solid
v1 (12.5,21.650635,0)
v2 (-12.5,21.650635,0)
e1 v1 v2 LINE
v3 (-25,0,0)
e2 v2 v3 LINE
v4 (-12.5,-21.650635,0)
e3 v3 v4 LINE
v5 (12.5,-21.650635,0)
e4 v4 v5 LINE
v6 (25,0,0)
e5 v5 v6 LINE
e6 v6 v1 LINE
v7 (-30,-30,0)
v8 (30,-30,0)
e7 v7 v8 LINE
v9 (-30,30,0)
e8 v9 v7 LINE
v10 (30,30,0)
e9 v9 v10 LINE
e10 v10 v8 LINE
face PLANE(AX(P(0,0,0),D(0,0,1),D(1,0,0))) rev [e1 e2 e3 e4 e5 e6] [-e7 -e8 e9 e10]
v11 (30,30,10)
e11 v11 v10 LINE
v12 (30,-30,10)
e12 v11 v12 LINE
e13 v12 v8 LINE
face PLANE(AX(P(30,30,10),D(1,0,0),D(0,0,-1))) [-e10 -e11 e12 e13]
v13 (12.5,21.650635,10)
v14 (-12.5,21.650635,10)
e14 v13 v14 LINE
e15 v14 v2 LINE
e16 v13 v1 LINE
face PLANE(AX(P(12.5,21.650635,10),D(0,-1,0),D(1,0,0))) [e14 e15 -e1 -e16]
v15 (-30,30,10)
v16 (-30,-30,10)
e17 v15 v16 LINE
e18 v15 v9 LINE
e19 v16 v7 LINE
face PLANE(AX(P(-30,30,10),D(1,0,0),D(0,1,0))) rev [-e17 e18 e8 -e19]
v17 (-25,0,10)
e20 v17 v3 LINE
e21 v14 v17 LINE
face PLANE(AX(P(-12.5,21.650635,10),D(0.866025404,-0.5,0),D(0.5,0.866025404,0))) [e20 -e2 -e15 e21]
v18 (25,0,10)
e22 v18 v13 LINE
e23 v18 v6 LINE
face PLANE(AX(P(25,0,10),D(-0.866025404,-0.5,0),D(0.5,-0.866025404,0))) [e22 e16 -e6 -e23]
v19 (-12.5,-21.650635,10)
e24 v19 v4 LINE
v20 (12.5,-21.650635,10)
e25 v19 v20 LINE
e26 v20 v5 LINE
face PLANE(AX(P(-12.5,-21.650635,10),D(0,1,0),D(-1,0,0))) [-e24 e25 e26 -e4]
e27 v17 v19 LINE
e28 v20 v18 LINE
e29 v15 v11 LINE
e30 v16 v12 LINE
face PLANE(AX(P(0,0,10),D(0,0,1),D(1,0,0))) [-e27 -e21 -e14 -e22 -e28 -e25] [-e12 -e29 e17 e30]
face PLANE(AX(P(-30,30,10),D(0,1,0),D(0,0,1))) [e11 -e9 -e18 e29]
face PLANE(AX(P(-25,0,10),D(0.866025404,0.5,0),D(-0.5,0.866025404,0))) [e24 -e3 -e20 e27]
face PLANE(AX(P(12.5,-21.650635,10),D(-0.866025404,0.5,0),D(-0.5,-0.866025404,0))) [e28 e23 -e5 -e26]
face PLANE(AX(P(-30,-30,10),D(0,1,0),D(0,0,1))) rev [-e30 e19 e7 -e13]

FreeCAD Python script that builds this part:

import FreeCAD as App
import Part
import Sketcher
Q = App.Units.Quantity

doc = App.newDocument("Part")
body = doc.addObject("PartDesign::Body", "Body")

sketch1 = body.newObject("Sketcher::SketchObject", "Sketch")
sketch1.AttachmentSupport = (doc.getObject("XY_Plane"), [""])
sketch1.MapMode = "FlatFace"
sketch1.addGeometry(Part.LineSegment(App.Vector(-30, 30, 0), App.Vector(-30, -30, 0)), False)
sketch1.addGeometry(Part.LineSegment(App.Vector(-30, -30, 0), App.Vector(30, -30, 0)), False)
sketch1.addGeometry(Part.LineSegment(App.Vector(30, -30, 0), App.Vector(30, 30, 0)), False)
sketch1.addGeometry(Part.LineSegment(App.Vector(30, 30, 0), App.Vector(-30, 30, 0)), False)
sketch1.addGeometry(Part.LineSegment(App.Vector(25, 0, 0), App.Vector(12, -22, 0)), False)
sketch1.addGeometry(Part.LineSegment(App.Vector(12, -22, 0), App.Vector(-12, -22, 0)), False)
sketch1.addGeometry(Part.LineSegment(App.Vector(-12, -22, 0), App.Vector(-25, 0, 0)), False)
sketch1.addGeometry(Part.LineSegment(App.Vector(-25, 0, 0), App.Vector(-12, 22, 0)), False)
sketch1.addGeometry(Part.LineSegment(App.Vector(-12, 22, 0), App.Vector(12, 22, 0)), False)
sketch1.addGeometry(Part.LineSegment(App.Vector(12, 22, 0), App.Vector(25, 0, 0)), False)
sketch1.addConstraint(Sketcher.Constraint("Coincident", 0, 2, 1, 1))
sketch1.addConstraint(Sketcher.Constraint("Coincident", 1, 2, 2, 1))
sketch1.addConstraint(Sketcher.Constraint("Coincident", 2, 2, 3, 1))
sketch1.addConstraint(Sketcher.Constraint("Coincident", 3, 2, 0, 1))
sketch1.addConstraint(Sketcher.Constraint("Coincident", 4, 2, 5, 1))
sketch1.addConstraint(Sketcher.Constraint("Coincident", 5, 2, 6, 1))
sketch1.addConstraint(Sketcher.Constraint("Coincident", 6, 2, 7, 1))
sketch1.addConstraint(Sketcher.Constraint("Coincident", 7, 2, 8, 1))
sketch1.addConstraint(Sketcher.Constraint("Coincident", 8, 2, 9, 1))
sketch1.addConstraint(Sketcher.Constraint("Coincident", 9, 2, 4, 1))
sketch1.addConstraint(Sketcher.Constraint("Vertical", 0))
sketch1.addConstraint(Sketcher.Constraint("Horizontal", 1))
sketch1.addConstraint(Sketcher.Constraint("Vertical", 2))
sketch1.addConstraint(Sketcher.Constraint("Horizontal", 3))
sketch1.addConstraint(Sketcher.Constraint("Horizontal", 5))
sketch1.addConstraint(Sketcher.Constraint("Horizontal", 8))
sketch1.addConstraint(Sketcher.Constraint("Symmetric", 0, 2, 2, 2, -1, 1))
sketch1.addConstraint(Sketcher.Constraint("Symmetric", 4, 2, 7, 2, -1, 1))
sketch1.addConstraint(Sketcher.Constraint("Symmetric", 6, 2, 9, 2, -1, 1))
sketch1.addConstraint(Sketcher.Constraint("PointOnObject", 6, 2, -1))
sketch1.addConstraint(Sketcher.Constraint("Parallel", 6, 9))
sketch1.addConstraint(Sketcher.Constraint("Vertical", 5, 2, 7, 2))
sketch1.addConstraint(Sketcher.Constraint("Equal", 3, 0))
sketch1.addConstraint(Sketcher.Constraint("DistanceX", 1, 1, 1, 2, 60.0))
sketch1.addConstraint(Sketcher.Constraint("DistanceX", 5, 2, 5, 1, 25.0))
sketch1.addConstraint(Sketcher.Constraint("Angle", 4, Q("-120 deg")))
sketch1.addConstraint(Sketcher.Constraint("Distance", 4, 25.0))
pad1 = body.newObject("PartDesign::Pad", "Pad")
pad1.Profile = sketch1
pad1.Length = 10

doc.recompute()
